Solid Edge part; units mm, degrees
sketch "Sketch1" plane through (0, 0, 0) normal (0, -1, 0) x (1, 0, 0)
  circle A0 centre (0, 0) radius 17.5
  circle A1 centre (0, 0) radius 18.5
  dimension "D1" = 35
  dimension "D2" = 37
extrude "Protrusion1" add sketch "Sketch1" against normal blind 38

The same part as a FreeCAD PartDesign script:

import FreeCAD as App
import Part
import Sketcher

V = App.Vector
Q = App.Units.Quantity

doc = App.newDocument("Part")
body = doc.addObject("PartDesign::Body", "Body")

# Sketch on XZ plane
sketch1 = body.newObject("Sketcher::SketchObject", "Sketch")
sketch1.AttachmentSupport = (doc.getObject("XZ_Plane"), [""])
sketch1.MapMode = "FlatFace"
sketch1.addGeometry([
    Part.Circle(V(0, 0, 0), V(0, 0, 1), 18),
    Part.Circle(V(0, 0, 0), V(0, 0, 1), 18),
], False)
sketch1.addConstraint([
    Sketcher.Constraint("Coincident", 0, 3, -1, 1),
    Sketcher.Constraint("Coincident", 1, 3, -1, 1),
    Sketcher.Constraint("Diameter", 0, Q("37 mm")),
    Sketcher.Constraint("Diameter", 1, Q("35 mm")),
])
pad1 = body.newObject("PartDesign::Pad", "Pad")
pad1.Profile = sketch1
pad1.Length = 38
pad1.Reversed = True

doc.recompute()
